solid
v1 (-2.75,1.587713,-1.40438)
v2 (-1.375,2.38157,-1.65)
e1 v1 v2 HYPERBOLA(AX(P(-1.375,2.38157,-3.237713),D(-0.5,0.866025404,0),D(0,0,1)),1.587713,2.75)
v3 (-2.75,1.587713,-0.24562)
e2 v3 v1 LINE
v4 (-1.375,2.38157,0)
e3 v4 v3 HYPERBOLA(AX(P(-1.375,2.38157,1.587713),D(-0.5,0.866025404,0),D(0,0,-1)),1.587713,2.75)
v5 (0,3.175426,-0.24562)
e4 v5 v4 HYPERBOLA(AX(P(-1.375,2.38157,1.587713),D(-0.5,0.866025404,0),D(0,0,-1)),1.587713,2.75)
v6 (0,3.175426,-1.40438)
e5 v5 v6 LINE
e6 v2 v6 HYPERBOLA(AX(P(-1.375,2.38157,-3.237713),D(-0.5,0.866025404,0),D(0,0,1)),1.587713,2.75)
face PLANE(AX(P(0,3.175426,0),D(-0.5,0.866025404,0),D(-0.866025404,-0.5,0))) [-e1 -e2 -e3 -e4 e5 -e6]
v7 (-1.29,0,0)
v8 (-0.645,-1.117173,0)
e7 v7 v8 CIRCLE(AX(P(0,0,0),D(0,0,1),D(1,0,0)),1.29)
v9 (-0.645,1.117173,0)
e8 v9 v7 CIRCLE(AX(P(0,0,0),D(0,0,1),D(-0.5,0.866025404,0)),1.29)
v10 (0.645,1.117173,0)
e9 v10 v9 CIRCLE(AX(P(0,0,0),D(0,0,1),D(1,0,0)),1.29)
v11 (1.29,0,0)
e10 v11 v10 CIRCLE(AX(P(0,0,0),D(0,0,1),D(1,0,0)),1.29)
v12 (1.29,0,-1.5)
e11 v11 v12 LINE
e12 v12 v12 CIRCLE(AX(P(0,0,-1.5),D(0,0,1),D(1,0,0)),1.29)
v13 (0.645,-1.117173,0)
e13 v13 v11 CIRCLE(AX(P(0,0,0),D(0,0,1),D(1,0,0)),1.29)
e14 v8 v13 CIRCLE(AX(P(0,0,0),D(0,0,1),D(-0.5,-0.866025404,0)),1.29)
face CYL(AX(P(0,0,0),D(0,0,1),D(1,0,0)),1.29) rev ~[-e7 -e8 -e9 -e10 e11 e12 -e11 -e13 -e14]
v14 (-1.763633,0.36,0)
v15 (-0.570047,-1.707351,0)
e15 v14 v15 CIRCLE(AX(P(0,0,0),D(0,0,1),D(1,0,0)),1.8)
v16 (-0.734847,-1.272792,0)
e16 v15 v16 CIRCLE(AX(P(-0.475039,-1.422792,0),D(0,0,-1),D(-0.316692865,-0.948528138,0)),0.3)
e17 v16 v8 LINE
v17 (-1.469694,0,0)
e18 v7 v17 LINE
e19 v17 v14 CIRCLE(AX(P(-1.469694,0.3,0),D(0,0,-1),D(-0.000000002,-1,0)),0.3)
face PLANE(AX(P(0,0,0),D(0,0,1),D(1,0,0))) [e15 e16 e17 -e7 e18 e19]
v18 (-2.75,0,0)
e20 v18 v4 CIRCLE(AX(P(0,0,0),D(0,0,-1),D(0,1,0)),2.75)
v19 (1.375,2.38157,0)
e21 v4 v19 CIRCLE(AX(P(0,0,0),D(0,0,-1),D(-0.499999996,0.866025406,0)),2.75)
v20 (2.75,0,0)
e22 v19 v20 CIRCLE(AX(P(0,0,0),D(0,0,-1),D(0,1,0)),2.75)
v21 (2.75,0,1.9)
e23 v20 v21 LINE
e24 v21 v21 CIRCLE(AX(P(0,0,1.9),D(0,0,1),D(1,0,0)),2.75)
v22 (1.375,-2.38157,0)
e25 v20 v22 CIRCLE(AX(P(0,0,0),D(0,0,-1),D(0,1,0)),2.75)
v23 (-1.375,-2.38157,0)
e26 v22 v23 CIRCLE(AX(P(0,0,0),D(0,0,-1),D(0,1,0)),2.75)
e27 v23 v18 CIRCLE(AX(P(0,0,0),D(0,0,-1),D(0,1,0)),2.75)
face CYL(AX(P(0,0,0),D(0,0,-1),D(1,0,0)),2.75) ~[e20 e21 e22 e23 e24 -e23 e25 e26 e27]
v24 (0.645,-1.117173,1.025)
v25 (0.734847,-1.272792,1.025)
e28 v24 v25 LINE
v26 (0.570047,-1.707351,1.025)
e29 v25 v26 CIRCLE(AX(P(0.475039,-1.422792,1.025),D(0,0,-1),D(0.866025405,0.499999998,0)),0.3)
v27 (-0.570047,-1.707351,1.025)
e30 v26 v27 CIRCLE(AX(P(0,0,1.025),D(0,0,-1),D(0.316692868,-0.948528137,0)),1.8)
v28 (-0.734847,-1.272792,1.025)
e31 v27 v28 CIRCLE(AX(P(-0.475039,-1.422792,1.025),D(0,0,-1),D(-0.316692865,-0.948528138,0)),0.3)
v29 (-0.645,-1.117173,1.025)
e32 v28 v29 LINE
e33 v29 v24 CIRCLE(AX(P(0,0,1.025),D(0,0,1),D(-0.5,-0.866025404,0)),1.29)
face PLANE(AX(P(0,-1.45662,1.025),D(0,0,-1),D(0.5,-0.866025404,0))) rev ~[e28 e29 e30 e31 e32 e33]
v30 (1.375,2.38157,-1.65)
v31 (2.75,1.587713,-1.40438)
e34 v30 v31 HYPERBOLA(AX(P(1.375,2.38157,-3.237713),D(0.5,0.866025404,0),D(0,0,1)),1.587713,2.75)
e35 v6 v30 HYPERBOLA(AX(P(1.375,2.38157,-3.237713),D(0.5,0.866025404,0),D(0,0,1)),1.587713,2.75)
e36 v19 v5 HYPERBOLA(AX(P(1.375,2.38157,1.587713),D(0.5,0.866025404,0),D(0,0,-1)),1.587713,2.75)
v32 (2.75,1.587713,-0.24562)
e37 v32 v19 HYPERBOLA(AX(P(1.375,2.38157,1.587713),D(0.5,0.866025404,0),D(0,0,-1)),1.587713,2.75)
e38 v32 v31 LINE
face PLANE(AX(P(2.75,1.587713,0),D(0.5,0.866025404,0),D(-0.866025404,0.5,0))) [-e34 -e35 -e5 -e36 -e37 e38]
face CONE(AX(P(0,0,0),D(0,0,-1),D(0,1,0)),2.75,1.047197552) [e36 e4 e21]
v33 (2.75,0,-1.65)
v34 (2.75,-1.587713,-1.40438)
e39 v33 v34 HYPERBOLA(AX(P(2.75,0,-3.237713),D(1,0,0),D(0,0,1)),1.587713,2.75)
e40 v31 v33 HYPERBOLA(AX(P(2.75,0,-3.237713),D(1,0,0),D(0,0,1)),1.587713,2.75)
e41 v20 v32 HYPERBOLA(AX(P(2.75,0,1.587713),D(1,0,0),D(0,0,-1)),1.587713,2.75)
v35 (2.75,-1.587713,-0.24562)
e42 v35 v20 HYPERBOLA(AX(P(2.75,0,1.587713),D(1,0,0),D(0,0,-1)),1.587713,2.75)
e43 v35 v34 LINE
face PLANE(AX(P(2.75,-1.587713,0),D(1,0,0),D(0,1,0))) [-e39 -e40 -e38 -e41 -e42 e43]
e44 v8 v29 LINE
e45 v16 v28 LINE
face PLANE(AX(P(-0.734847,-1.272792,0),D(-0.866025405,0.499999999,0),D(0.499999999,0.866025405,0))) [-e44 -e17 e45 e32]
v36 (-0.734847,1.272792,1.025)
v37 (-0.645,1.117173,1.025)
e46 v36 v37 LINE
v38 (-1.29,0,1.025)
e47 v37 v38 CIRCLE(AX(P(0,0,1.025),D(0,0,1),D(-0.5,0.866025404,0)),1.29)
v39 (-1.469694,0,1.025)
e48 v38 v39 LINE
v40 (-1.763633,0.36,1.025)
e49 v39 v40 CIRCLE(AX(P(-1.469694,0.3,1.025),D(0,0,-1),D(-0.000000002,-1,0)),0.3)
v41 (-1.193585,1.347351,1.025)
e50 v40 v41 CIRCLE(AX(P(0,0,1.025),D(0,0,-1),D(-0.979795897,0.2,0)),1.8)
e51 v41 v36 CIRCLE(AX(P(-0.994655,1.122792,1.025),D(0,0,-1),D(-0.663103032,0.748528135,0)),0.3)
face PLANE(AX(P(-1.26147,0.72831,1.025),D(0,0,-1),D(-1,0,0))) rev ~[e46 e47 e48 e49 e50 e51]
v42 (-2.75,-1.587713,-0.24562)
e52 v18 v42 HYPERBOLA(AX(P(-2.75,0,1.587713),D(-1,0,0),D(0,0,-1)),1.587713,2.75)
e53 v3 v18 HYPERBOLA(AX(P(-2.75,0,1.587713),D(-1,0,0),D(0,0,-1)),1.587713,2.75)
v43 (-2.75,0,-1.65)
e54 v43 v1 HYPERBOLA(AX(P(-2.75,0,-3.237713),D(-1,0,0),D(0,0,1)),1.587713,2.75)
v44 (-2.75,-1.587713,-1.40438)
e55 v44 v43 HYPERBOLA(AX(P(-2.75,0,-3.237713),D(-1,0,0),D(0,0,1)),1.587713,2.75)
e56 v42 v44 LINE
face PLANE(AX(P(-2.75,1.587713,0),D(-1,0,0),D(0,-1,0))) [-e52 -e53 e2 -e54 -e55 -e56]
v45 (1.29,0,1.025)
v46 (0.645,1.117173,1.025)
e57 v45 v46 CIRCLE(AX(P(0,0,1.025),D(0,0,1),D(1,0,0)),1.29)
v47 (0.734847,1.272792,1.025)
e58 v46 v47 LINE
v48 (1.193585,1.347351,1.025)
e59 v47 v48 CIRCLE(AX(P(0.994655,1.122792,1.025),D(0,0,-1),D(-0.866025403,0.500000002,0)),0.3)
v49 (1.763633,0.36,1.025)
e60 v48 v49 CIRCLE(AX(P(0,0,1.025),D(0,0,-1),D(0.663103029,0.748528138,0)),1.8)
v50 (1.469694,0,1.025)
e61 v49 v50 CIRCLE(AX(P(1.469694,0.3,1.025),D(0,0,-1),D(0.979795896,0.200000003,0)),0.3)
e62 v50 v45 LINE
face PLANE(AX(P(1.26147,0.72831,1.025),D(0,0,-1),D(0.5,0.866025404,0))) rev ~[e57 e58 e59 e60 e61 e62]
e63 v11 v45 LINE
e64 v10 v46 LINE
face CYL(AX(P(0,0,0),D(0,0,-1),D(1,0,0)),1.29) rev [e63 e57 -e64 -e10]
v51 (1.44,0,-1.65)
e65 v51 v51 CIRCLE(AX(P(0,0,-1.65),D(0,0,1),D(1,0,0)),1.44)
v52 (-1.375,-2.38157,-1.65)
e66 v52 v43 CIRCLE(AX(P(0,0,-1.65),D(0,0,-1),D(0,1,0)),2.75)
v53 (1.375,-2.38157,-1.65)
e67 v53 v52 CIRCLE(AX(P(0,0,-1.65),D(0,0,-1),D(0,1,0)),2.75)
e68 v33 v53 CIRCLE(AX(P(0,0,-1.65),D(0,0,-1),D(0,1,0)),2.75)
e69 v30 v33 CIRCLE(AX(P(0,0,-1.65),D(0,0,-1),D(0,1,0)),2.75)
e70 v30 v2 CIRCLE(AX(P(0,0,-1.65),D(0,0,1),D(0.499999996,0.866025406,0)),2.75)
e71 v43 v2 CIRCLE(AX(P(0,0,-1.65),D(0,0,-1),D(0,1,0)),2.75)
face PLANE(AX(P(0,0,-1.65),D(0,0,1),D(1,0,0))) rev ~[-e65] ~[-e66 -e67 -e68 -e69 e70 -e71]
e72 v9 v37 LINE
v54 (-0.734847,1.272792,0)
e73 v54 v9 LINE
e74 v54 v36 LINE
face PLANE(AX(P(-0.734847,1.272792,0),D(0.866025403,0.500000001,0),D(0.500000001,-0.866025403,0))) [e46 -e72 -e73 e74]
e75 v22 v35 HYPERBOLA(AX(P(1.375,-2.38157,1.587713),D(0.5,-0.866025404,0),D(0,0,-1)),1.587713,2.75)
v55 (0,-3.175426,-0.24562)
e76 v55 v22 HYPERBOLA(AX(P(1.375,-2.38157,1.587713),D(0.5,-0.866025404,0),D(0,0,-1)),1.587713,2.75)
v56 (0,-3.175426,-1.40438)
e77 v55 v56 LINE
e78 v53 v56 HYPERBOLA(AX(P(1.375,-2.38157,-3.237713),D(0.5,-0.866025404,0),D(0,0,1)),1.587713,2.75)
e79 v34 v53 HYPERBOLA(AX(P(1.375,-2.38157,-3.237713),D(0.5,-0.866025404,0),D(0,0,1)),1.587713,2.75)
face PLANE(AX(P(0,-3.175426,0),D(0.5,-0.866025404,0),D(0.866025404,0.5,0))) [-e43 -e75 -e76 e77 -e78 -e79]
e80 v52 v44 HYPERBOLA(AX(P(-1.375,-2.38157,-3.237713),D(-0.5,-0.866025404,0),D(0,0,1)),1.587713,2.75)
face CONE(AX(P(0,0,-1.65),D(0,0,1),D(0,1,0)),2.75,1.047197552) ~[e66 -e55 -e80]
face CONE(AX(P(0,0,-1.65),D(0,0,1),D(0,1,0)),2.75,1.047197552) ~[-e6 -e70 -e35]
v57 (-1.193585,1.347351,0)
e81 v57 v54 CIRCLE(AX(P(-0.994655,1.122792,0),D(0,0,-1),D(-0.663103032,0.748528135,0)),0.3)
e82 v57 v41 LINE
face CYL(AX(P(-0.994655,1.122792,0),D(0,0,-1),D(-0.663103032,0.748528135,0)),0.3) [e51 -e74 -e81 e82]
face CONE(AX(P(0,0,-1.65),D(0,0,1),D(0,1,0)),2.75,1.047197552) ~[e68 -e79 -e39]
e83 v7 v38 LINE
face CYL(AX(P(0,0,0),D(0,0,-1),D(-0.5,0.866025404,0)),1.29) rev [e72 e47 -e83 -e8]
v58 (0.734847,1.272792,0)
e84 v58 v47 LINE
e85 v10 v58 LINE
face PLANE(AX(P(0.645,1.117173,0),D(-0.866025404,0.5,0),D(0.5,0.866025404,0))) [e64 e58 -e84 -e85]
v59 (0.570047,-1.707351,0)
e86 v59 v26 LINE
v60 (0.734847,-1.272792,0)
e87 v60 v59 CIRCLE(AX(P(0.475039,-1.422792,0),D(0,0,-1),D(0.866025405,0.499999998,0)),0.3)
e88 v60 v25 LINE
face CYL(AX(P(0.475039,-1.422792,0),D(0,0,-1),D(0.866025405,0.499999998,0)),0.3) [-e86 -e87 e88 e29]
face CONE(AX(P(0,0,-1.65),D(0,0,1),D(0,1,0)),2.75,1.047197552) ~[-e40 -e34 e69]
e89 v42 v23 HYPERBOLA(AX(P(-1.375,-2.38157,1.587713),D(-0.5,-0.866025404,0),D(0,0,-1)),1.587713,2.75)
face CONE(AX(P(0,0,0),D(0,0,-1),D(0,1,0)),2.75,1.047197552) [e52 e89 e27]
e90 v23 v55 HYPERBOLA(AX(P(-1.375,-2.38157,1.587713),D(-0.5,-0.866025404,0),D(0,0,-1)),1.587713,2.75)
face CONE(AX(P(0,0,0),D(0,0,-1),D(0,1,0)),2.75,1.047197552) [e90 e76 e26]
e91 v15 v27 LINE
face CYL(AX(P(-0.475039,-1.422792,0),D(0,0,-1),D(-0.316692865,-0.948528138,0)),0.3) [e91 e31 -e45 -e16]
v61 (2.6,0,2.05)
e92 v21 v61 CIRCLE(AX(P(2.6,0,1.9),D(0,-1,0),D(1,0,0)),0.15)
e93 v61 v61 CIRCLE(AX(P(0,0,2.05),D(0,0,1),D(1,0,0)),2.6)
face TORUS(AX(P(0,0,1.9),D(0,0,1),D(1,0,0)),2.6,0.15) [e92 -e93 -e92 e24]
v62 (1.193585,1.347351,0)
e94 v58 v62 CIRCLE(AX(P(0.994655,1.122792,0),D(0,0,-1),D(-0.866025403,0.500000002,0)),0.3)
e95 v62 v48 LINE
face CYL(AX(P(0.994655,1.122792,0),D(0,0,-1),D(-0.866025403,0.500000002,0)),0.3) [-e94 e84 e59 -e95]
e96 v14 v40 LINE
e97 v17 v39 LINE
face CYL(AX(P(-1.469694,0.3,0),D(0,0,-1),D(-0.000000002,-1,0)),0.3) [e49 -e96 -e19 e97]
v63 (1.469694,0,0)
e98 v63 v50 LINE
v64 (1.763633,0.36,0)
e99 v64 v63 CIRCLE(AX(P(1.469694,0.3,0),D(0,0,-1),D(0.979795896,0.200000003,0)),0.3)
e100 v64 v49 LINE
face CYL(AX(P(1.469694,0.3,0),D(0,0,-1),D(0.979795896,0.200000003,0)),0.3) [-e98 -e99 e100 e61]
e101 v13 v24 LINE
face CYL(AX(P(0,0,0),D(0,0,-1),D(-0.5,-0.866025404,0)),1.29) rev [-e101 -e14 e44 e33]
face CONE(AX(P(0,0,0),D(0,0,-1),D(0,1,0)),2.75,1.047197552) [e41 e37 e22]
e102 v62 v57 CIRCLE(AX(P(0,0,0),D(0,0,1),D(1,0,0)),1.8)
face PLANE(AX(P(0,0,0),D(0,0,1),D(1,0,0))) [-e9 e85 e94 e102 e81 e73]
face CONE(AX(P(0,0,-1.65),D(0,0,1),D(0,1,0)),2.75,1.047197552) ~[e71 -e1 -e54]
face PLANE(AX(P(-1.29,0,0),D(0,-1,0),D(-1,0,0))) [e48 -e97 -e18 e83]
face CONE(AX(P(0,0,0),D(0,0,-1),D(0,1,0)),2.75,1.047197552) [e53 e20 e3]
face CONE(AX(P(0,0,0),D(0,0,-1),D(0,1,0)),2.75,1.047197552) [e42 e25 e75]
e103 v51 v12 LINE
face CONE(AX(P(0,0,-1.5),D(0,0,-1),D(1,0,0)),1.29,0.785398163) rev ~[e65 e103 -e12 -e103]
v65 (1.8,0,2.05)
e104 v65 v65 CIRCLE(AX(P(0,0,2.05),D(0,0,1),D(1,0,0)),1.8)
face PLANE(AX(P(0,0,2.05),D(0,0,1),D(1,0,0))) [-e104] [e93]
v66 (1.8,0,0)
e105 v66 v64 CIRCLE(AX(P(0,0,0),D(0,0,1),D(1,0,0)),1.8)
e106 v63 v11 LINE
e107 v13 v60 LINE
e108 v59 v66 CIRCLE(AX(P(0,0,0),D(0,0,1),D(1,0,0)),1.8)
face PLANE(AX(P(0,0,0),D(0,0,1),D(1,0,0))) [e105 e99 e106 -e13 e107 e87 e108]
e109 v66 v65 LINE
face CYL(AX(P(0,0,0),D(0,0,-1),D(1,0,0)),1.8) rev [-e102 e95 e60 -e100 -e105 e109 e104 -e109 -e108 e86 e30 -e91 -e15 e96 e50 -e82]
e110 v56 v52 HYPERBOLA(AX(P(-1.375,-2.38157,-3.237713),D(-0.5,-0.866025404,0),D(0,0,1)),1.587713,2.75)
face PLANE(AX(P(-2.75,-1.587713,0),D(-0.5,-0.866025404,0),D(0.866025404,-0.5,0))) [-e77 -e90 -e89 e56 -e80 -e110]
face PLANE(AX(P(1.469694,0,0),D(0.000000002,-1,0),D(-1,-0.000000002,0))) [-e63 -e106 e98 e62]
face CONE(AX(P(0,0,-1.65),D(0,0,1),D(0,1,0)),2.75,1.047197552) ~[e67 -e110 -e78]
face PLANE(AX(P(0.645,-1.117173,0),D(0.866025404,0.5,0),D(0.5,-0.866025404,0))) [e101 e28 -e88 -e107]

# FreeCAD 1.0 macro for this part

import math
import FreeCAD as App
import Part
import Sketcher
Q = App.Units.Quantity


def edges_at(feature, points):
    """Names of the edges that pass closest to the given points."""
    edges = feature.Shape.Edges
    near = lambda p: min(range(len(edges)), key=lambda i: edges[i].distToShape(Part.Vertex(*p))[0])
    return sorted({f"Edge{near(p) + 1}" for p in points})


def add_polygon(sketch, points):
    """Adds a closed chain of lines whose ends are joined by coincident constraints."""
    first, n = sketch.GeometryCount, len(points)
    for a, b in zip(points, points[1:] + points[:1]):
        sketch.addGeometry(Part.LineSegment(App.Vector(*a, 0), App.Vector(*b, 0)), False)
    for i in range(n):
        sketch.addConstraint(Sketcher.Constraint("Coincident", first + i, 2, first + (i + 1) % n, 1))

doc = App.newDocument("Part")
body = doc.addObject("PartDesign::Body", "Body")

sketch1 = body.newObject("Sketcher::SketchObject", "Sketch")
sketch1.AttachmentSupport = (doc.getObject("XY_Plane"), [""])
sketch1.MapMode = "FlatFace"
add_polygon(sketch1, [(0, 3.2), (-2.8, 1.6), (-2.8, -1.6), (0, -3.2), (2.8, -1.6), (2.8, 1.6)])
sketch1.addGeometry(Part.Circle(App.Vector(0, 0, 0), App.Vector(0, 0, 1), 1.3), False)
sketch1.addConstraint([
    Sketcher.Constraint("Vertical", 1),
    Sketcher.Constraint("Vertical", 4),
    Sketcher.Constraint("Coincident", 6, 3, -1, 1),
    Sketcher.Constraint("Symmetric", 0, 2, 3, 2, -1, 1),
    Sketcher.Constraint("Symmetric", 2, 2, 5, 2, -1, 1),
    Sketcher.Constraint("PointOnObject", 2, 2, -2),
    Sketcher.Constraint("Parallel", 2, 5),
    Sketcher.Constraint("Horizontal", 1, 2, 3, 2),
    Sketcher.Constraint("Diameter", 6, 2.58),
    Sketcher.Constraint("Angle", 0, Q("-150 deg")),
    Sketcher.Constraint("DistanceX", 1, 2, 3, 2, 5.5),
    Sketcher.Constraint("DistanceY", 1, 2, 1, 1, 3.175426),
])
pad1 = body.newObject("PartDesign::Pad", "Pad")
pad1.Profile = sketch1
pad1.Length = 1.65
pad1.Reversed = True

sketch2 = body.newObject("Sketcher::SketchObject", "Sketch001")
sketch2.AttachmentSupport = (doc.getObject("YZ_Plane"), [""])
sketch2.MapMode = "FlatFace"
add_polygon(sketch2, [(2.75, 0), (3.18, -0.25), (3.18, 0)])
add_polygon(sketch2, [(3.18, -1.4), (2.75, -1.65), (3.18, -1.65)])
sketch2.addConstraint([
    Sketcher.Constraint("Vertical", 1),
    Sketcher.Constraint("Horizontal", 2),
    Sketcher.Constraint("Horizontal", 4),
    Sketcher.Constraint("Vertical", 5),
    Sketcher.Constraint("PointOnObject", 1, 2, -1),
    Sketcher.Constraint("Vertical", 2, 2, 3, 2),
    Sketcher.Constraint("Vertical", 1, 2, 4, 2),
    Sketcher.Constraint("Equal", 1, 5),
    Sketcher.Constraint("Angle", 0, Q("-30 deg")),
    Sketcher.Constraint("DistanceX", -1, 1, 2, 2, 2.75),
    Sketcher.Constraint("DistanceY", 3, 2, -1, 1, 1.65),
    Sketcher.Constraint("DistanceY", 1, 1, 1, 2, 0.24562),
])
groove = body.newObject("PartDesign::Groove", "Groove")
groove.Profile = sketch2
groove.ReferenceAxis = (sketch2, ["V_Axis"])
groove.Angle = 360
doc.recompute()

chamfer = body.newObject("PartDesign::Chamfer", "Chamfer")
chamfer.Base = (groove, edges_at(groove, [(-1.29, 0, -1.65)]))
chamfer.Size = 0.15

sketch3 = body.newObject("Sketcher::SketchObject", "Sketch002")
sketch3.AttachmentSupport = (doc.getObject("XY_Plane"), [""])
sketch3.MapMode = "FlatFace"
sketch3.addGeometry([
    Part.Circle(App.Vector(0, 0, 0), App.Vector(0, 0, 1), 2.8),
    Part.Circle(App.Vector(0, 0, 0), App.Vector(0, 0, 1), 1.8),
], False)
sketch3.addConstraint([
    Sketcher.Constraint("Coincident", 0, 3, -1, 1),
    Sketcher.Constraint("Coincident", 1, 3, -1, 1),
    Sketcher.Constraint("Diameter", 0, 5.5),
    Sketcher.Constraint("Diameter", 1, 3.6),
])
pad2 = body.newObject("PartDesign::Pad", "Pad001")
pad2.Profile = sketch3
pad2.Length = 2.05
doc.recompute()

fillet = body.newObject("PartDesign::Fillet", "Fillet")
fillet.Base = (pad2, edges_at(pad2, [(-2.75, 0, 2.05)]))
fillet.Radius = 0.15

sketch4 = body.newObject("Sketcher::SketchObject", "Sketch003")
sketch4.AttachmentSupport = (doc.getObject("XY_Plane"), [""])
sketch4.MapMode = "FlatFace"
sketch4.addGeometry([
    Part.LineSegment(App.Vector(-1.47, 0, 0), App.Vector(-1.29, 0, 0)),
    Part.ArcOfCircle(Part.Circle(App.Vector(0, 0, 0), App.Vector(0, 0, 1), 1.29), math.radians(120), math.radians(180)),
    Part.LineSegment(App.Vector(-0.65, 1.12, 0), App.Vector(-0.73, 1.27, 0)),
    Part.ArcOfCircle(Part.Circle(App.Vector(-0.99, 1.12, 0), App.Vector(0, 0, 1), 0.3), math.radians(30), math.radians(132)),
    Part.ArcOfCircle(Part.Circle(App.Vector(0, 0, 0), App.Vector(0, 0, 1), 1.8), math.radians(132), math.radians(168)),
    Part.ArcOfCircle(Part.Circle(App.Vector(-1.47, 0.3, 0), App.Vector(0, 0, 1), 0.3), math.radians(168), math.radians(270)),
], False)
sketch4.addConstraint([
    Sketcher.Constraint("Coincident", 0, 2, 1, 2),
    Sketcher.Constraint("Coincident", 1, 1, 2, 1),
    Sketcher.Constraint("Tangent", 2, 2, 3, 1),
    Sketcher.Constraint("Tangent", 3, 2, 4, 1),
    Sketcher.Constraint("Tangent", 4, 2, 5, 1),
    Sketcher.Constraint("Tangent", 5, 2, 0, 1),
    Sketcher.Constraint("Horizontal", 0),
    Sketcher.Constraint("Coincident", 1, 3, -1, 1),
    Sketcher.Constraint("Coincident", 4, 3, -1, 1),
    Sketcher.Constraint("Equal", 3, 5),
    Sketcher.Constraint("PointOnObject", 0, 2, -1),
    Sketcher.Constraint("Radius", 3, 0.3),
    Sketcher.Constraint("Radius", 4, 1.8),
    Sketcher.Constraint("Angle", 2, Q("120 deg")),
    Sketcher.Constraint("Radius", 1, 1.29),
    Sketcher.Constraint("DistanceX", 1, 1, -1, 1, 0.645),
])
pad3 = body.newObject("PartDesign::Pad", "Pad002")
pad3.Profile = sketch4
pad3.Length = 1.025
doc.recompute()

polarpattern = body.newObject("PartDesign::PolarPattern", "PolarPattern")
polarpattern.Originals = [pad3]
polarpattern.Axis = (doc.getObject("Z_Axis"), [""])
polarpattern.Angle = 360
polarpattern.Occurrences = 3
body.Tip = polarpattern

doc.recompute()
